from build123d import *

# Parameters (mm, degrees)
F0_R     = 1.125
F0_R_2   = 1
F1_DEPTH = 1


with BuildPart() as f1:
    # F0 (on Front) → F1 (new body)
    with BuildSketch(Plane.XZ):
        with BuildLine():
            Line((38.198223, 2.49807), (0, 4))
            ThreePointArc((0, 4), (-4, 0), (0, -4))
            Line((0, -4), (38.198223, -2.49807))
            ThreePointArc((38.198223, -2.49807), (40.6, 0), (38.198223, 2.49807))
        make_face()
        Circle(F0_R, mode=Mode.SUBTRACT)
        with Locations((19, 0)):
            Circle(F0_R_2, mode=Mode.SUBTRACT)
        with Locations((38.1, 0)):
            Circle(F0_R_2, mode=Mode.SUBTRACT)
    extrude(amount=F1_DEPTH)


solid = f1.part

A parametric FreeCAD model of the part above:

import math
import FreeCAD as App
import Part
import Sketcher

V = App.Vector

doc = App.newDocument("Part")
body = doc.addObject("PartDesign::Body", "Body")

# Sketch on XZ plane
sketch1 = doc.addObject("Sketcher::SketchObject", "Sketch")
body.addObject(sketch1)
sketch1.AttachmentSupport = (doc.XZ_Plane, [""])
sketch1.MapMode = "FlatFace"
sketch1.addGeometry(Part.LineSegment(V(38.2, 2.5, 0), V(0, 4, 0)), False)
sketch1.addGeometry(Part.ArcOfCircle(Part.Circle(V(0, 0, 0), V(0, 0, 1), 4), math.radians(90), math.radians(270)), False)
sketch1.addGeometry(Part.LineSegment(V(0, -4, 0), V(38.2, -2.5, 0)), False)
sketch1.addGeometry(Part.ArcOfCircle(Part.Circle(V(38.1, 0, 0), V(0, 0, 1), 2.5), math.radians(-88), math.radians(88)), False)
sketch1.addGeometry(Part.Circle(V(0, 0, 0), V(0, 0, 1), 1.1), False)
sketch1.addGeometry(Part.Circle(V(19, 0, 0), V(0, 0, 1), 1), False)
sketch1.addGeometry(Part.Circle(V(38.1, 0, 0), V(0, 0, 1), 1), False)
sketch1.addConstraint(Sketcher.Constraint("Coincident", 0, 2, 1, 1))
sketch1.addConstraint(Sketcher.Constraint("Coincident", 1, 2, 2, 1))
sketch1.addConstraint(Sketcher.Constraint("Tangent", 2, 2, 3, 1))
sketch1.addConstraint(Sketcher.Constraint("Tangent", 3, 2, 0, 1))
sketch1.addConstraint(Sketcher.Constraint("Coincident", 1, 3, -1, 1))
sketch1.addConstraint(Sketcher.Constraint("Coincident", 4, 3, -1, 1))
sketch1.addConstraint(Sketcher.Constraint("Coincident", 6, 3, 3, 3))
sketch1.addConstraint(Sketcher.Constraint("Equal", 5, 6))
sketch1.addConstraint(Sketcher.Constraint("Symmetric", 2, 2, 3, 2, -1))
sketch1.addConstraint(Sketcher.Constraint("PointOnObject", 5, 3, -1))
sketch1.addConstraint(Sketcher.Constraint("PointOnObject", 0, 2, -2))
sketch1.addConstraint(Sketcher.Constraint("Diameter", 5, 2.0))
sketch1.addConstraint(Sketcher.Constraint("Radius", 1, 4.0))
sketch1.addConstraint(Sketcher.Constraint("Radius", 3, 2.5))
sketch1.addConstraint(Sketcher.Constraint("Diameter", 4, 2.25))
sketch1.addConstraint(Sketcher.Constraint("DistanceX", -1, 1, 5, 3, 19.0))
sketch1.addConstraint(Sketcher.Constraint("DistanceX", -1, 1, 3, 3, 38.1))
pad1 = doc.addObject("PartDesign::Pad", "Pad")
body.addObject(pad1)
pad1.Profile = sketch1
pad1.Length = 1

doc.recompute()
